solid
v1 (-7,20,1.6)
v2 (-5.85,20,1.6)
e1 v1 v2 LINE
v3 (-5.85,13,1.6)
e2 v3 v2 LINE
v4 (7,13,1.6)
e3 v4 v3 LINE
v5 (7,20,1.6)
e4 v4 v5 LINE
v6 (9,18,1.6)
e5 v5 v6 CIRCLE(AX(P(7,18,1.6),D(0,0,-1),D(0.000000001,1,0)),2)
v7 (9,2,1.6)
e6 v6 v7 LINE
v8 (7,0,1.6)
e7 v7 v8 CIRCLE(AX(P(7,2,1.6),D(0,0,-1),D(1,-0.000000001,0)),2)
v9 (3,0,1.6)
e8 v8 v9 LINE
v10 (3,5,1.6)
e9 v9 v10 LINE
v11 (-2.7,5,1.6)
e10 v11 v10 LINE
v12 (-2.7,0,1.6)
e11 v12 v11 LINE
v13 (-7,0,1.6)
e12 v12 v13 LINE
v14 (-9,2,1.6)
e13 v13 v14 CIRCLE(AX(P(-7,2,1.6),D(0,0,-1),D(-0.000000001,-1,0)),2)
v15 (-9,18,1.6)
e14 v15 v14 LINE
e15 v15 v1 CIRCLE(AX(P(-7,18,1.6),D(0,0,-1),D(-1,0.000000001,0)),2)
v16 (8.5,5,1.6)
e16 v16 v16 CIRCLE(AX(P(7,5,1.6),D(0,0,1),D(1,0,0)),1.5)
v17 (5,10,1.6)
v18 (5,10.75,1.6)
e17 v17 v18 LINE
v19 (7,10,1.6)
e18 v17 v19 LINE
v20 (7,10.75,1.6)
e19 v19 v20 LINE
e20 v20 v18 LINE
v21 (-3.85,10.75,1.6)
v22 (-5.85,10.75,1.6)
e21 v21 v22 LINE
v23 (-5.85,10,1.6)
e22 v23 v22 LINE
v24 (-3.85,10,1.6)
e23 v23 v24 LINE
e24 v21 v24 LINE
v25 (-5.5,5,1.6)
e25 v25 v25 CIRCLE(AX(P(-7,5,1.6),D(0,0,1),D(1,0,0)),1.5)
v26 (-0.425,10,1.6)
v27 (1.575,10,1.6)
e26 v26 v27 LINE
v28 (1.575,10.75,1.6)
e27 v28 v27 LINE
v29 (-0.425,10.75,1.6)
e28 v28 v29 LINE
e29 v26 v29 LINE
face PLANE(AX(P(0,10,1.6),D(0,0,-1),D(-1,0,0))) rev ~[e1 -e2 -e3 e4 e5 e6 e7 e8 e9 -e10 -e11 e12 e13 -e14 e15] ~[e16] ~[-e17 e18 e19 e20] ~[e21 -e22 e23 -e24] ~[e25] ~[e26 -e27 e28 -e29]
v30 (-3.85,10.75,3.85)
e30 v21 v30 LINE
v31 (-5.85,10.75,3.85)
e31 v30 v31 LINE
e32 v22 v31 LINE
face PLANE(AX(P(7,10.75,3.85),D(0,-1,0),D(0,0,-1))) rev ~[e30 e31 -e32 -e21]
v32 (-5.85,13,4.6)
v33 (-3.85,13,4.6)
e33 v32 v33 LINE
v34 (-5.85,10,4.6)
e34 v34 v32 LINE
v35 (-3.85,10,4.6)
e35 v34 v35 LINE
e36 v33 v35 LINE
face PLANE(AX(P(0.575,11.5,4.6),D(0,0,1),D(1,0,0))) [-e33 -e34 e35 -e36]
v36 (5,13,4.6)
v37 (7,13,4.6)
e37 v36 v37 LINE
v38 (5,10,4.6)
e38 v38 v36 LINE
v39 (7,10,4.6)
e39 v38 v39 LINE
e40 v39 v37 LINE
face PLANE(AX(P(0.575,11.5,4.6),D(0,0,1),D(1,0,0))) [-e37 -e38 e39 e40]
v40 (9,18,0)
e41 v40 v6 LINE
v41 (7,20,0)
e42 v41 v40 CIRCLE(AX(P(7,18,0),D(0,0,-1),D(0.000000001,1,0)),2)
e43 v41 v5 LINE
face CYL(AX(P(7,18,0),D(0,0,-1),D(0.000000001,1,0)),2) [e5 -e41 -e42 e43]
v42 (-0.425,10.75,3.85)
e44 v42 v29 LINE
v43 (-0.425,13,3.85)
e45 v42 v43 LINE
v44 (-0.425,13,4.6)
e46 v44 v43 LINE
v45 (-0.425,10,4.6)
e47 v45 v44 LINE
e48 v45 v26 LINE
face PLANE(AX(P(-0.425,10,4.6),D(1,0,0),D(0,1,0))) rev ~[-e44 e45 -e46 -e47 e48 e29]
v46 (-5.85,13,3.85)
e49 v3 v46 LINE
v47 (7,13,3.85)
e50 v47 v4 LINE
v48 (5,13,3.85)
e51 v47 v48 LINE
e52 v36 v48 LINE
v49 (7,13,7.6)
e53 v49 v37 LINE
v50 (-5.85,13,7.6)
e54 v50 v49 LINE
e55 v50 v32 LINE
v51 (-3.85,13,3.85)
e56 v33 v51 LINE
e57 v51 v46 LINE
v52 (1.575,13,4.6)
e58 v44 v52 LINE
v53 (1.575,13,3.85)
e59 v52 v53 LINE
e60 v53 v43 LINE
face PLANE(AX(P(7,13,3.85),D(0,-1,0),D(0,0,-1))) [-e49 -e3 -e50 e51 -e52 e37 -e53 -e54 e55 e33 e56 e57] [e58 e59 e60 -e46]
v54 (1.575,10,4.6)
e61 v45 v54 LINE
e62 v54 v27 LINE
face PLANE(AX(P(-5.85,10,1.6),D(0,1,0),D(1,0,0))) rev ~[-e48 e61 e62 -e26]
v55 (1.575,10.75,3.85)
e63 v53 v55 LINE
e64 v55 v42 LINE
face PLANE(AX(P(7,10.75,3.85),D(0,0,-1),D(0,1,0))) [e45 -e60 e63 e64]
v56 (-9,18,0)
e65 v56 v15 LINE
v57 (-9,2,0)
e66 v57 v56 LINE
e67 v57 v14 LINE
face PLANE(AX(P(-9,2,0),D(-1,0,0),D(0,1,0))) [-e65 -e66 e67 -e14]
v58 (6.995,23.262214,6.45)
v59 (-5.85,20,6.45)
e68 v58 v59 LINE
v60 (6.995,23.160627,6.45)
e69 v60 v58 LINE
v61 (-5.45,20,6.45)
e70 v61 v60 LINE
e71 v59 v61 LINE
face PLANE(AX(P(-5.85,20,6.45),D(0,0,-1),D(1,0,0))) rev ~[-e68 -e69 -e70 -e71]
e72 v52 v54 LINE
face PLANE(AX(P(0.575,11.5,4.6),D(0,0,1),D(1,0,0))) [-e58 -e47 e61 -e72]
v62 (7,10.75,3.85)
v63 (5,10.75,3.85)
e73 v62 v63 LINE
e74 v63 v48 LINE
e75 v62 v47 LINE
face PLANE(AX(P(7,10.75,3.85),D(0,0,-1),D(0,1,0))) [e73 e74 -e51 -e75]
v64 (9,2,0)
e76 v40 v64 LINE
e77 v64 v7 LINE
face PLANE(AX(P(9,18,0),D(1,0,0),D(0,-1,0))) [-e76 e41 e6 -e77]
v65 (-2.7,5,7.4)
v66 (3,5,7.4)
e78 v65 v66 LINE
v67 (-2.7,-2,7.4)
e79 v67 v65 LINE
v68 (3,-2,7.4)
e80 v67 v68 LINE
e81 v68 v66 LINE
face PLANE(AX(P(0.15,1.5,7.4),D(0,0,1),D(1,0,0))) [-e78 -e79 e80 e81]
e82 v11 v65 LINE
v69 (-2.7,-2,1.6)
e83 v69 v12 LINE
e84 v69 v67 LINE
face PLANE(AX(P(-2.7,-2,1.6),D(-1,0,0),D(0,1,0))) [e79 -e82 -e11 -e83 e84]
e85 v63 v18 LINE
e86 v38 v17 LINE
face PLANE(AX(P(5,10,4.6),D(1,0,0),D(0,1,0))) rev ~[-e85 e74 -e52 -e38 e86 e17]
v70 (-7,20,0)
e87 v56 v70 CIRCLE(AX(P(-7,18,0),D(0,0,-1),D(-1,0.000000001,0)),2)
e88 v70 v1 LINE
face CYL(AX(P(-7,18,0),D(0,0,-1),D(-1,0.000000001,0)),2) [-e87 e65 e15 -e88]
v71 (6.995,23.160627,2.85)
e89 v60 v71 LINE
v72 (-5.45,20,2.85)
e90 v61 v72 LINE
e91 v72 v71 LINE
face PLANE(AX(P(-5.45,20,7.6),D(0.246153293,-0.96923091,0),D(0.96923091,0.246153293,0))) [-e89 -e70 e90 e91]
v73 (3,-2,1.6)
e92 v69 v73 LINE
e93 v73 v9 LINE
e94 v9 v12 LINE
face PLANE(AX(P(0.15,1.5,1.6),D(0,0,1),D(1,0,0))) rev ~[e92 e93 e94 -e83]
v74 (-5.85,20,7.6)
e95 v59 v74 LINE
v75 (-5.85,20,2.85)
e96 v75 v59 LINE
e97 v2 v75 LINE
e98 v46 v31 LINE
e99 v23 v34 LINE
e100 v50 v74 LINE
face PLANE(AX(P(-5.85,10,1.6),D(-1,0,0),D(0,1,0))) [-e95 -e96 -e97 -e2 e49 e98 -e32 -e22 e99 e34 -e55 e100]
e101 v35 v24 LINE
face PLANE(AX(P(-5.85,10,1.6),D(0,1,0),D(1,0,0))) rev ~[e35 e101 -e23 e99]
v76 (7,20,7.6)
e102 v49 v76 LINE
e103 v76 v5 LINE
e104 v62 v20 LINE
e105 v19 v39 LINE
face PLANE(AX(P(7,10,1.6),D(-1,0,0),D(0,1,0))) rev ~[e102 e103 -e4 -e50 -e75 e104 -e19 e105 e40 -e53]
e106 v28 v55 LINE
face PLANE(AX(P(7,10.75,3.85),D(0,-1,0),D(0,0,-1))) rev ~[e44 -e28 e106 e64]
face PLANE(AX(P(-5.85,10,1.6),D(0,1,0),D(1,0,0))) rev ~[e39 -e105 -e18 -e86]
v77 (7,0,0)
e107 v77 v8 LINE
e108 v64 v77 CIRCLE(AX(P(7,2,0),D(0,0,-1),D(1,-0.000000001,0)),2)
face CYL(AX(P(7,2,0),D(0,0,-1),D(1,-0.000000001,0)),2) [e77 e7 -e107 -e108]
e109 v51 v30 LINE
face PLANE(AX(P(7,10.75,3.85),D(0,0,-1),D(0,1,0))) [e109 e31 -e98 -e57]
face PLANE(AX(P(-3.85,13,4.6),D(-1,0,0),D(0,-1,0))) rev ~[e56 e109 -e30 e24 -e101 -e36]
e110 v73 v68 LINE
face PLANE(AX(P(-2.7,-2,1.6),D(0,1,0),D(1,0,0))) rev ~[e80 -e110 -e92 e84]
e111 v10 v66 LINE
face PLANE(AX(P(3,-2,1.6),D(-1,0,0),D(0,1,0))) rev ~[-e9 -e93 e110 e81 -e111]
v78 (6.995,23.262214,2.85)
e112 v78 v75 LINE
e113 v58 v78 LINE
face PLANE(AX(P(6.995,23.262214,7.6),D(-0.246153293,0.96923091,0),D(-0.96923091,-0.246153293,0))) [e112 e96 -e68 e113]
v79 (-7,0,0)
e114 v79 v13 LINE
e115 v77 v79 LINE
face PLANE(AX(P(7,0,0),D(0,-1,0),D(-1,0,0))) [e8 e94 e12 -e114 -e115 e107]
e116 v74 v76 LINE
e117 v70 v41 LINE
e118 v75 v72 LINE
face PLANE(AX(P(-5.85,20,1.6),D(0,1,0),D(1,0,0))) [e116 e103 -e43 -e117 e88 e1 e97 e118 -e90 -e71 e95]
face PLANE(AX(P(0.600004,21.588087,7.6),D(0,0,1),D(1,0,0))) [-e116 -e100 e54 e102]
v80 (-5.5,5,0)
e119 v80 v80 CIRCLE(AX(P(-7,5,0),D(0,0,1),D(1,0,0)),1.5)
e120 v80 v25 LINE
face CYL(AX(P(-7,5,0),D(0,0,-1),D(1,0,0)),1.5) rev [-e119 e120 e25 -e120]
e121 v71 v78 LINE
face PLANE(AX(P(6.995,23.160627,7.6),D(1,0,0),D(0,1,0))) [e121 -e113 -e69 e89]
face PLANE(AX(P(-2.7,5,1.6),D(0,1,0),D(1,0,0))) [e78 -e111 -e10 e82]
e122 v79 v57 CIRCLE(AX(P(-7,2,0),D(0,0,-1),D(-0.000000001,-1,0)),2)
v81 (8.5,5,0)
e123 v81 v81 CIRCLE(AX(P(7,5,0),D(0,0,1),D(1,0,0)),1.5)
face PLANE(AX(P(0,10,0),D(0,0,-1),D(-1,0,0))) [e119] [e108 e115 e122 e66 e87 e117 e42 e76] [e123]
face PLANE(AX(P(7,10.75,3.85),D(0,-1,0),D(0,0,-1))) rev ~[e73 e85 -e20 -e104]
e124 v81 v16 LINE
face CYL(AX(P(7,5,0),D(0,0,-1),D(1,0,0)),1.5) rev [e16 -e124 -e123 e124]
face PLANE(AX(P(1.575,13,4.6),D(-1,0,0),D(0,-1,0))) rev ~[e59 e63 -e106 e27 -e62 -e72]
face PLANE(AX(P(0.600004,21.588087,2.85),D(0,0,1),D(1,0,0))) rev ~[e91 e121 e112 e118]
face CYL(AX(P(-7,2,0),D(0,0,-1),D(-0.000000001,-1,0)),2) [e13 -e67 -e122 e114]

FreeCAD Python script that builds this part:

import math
import FreeCAD as App
import Part
import Sketcher

V = App.Vector
Q = App.Units.Quantity


def add_polygon(sketch, points):
    """Adds a closed chain of lines whose ends are joined by coincident constraints."""
    first, n = sketch.GeometryCount, len(points)
    for a, b in zip(points, points[1:] + points[:1]):
        sketch.addGeometry(Part.LineSegment(App.Vector(*a, 0), App.Vector(*b, 0)), False)
    for i in range(n):
        sketch.addConstraint(Sketcher.Constraint("Coincident", first + i, 2, first + (i + 1) % n, 1))

doc = App.newDocument("Part")
body = doc.addObject("PartDesign::Body", "Body")

# Sketch on XY plane
sketch1 = body.newObject("Sketcher::SketchObject", "Sketch")
sketch1.AttachmentSupport = (doc.getObject("XY_Plane"), [""])
sketch1.MapMode = "FlatFace"
sketch1.addGeometry([
    Part.LineSegment(V(7, 20, 0), V(-7, 20, 0)),  # 0
    Part.ArcOfCircle(Part.Circle(V(-7, 18, 0), V(0, 0, 1), 2), math.radians(90), math.radians(180)),  # 1
    Part.LineSegment(V(-9, 18, 0), V(-9, 2, 0)),  # 2
    Part.ArcOfCircle(Part.Circle(V(-7, 2, 0), V(0, 0, 1), 2), math.radians(-180), math.radians(-90)),  # 3
    Part.LineSegment(V(-7, 0, 0), V(7, 0, 0)),  # 4
    Part.ArcOfCircle(Part.Circle(V(7, 2, 0), V(0, 0, 1), 2), math.radians(-90), math.radians(0)),  # 5
    Part.LineSegment(V(9, 2, 0), V(9, 18, 0)),  # 6
    Part.ArcOfCircle(Part.Circle(V(7, 18, 0), V(0, 0, 1), 2), math.radians(0), math.radians(90)),  # 7
    Part.Circle(V(7, 5, 0), V(0, 0, 1), 1.5),  # 8
    Part.Circle(V(-7, 5, 0), V(0, 0, 1), 1.5),  # 9
], False)
sketch1.addConstraint([
    Sketcher.Constraint("Tangent", 0, 2, 1, 1),
    Sketcher.Constraint("Tangent", 1, 2, 2, 1),
    Sketcher.Constraint("Tangent", 2, 2, 3, 1),
    Sketcher.Constraint("Tangent", 3, 2, 4, 1),
    Sketcher.Constraint("Tangent", 4, 2, 5, 1),
    Sketcher.Constraint("Tangent", 5, 2, 6, 1),
    Sketcher.Constraint("Tangent", 6, 2, 7, 1),
    Sketcher.Constraint("Tangent", 7, 2, 0, 1),
    Sketcher.Constraint("Horizontal", 0),
    Sketcher.Constraint("Vertical", 2),
    Sketcher.Constraint("Horizontal", 4),
    Sketcher.Constraint("Vertical", 6),
    Sketcher.Constraint("Equal", 1, 3),
    Sketcher.Constraint("Equal", 3, 5),
    Sketcher.Constraint("Equal", 5, 7),
    Sketcher.Constraint("Equal", 8, 9),
    Sketcher.Constraint("Symmetric", 3, 2, 4, 2, -1, 1),
    Sketcher.Constraint("Symmetric", 8, 3, 9, 3, -2),
    Sketcher.Constraint("Vertical", 7, 3, 8, 3),
    Sketcher.Constraint("Diameter", 8, Q("3 mm")),
    Sketcher.Constraint("Radius", 1, Q("2 mm")),
    Sketcher.Constraint("DistanceX", 0, 2, 0, 1, Q("14 mm")),
    Sketcher.Constraint("DistanceY", 2, 2, 2, 1, Q("16 mm")),
    Sketcher.Constraint("DistanceY", -1, 1, 8, 3, Q("5 mm")),
])
pad1 = body.newObject("PartDesign::Pad", "Pad")
pad1.Profile = sketch1
pad1.Length = 1.6

# Sketch on XY plane
sketch2 = body.newObject("Sketcher::SketchObject", "Sketch001")
sketch2.AttachmentSupport = (doc.getObject("XY_Plane"), [""])
sketch2.MapMode = "FlatFace"
sketch2.AttachmentOffset = App.Placement(V(0, 0, 1.6), App.Rotation())
add_polygon(sketch2, [(-6, 20), (-6, 10), (7, 10), (7, 20)])  # lines 0-3
sketch2.addConstraint([
    Sketcher.Constraint("Vertical", 0),
    Sketcher.Constraint("Horizontal", 1),
    Sketcher.Constraint("Vertical", 2),
    Sketcher.Constraint("Horizontal", 3),
    Sketcher.Constraint("DistanceY", 0, 2, 0, 1, Q("10 mm")),
    Sketcher.Constraint("DistanceY", -1, 1, 0, 2, Q("10 mm")),
    Sketcher.Constraint("DistanceX", -1, 1, 1, 2, Q("7 mm")),
    Sketcher.Constraint("DistanceX", 1, 1, 1, 2, Q("12.85 mm")),
])
pad2 = body.newObject("PartDesign::Pad", "Pad001")
pad2.Profile = sketch2
pad2.Length = 6

# Sketch on XY plane
sketch3 = body.newObject("Sketcher::SketchObject", "Sketch002")
sketch3.AttachmentSupport = (doc.getObject("XY_Plane"), [""])
sketch3.MapMode = "FlatFace"
sketch3.AttachmentOffset = App.Placement(V(0, 0, 7.6), App.Rotation())
add_polygon(sketch3, [(-5.8, 13), (-5.8, 10), (7, 10), (7, 13)])  # lines 0-3
sketch3.addConstraint([
    Sketcher.Constraint("Vertical", 0),
    Sketcher.Constraint("Horizontal", 1),
    Sketcher.Constraint("Vertical", 2),
    Sketcher.Constraint("Horizontal", 3),
    Sketcher.Constraint("DistanceY", 0, 2, 0, 1, Q("3 mm")),
    Sketcher.Constraint("DistanceY", -1, 1, 0, 2, Q("10 mm")),
    Sketcher.Constraint("DistanceX", -1, 1, 1, 2, Q("7 mm")),
    Sketcher.Constraint("DistanceX", 1, 1, 1, 2, Q("12.85 mm")),
])
pocket1 = body.newObject("PartDesign::Pocket", "Pocket")
pocket1.Profile = sketch3
pocket1.Length = 3

# Sketch on XY plane
sketch4 = body.newObject("Sketcher::SketchObject", "Sketch003")
sketch4.AttachmentSupport = (doc.getObject("XY_Plane"), [""])
sketch4.MapMode = "FlatFace"
sketch4.AttachmentOffset = App.Placement(V(0, 0, 4.6), App.Rotation())
add_polygon(sketch4, [(5, 13), (1.6, 13), (1.6, 10), (5, 10)])  # lines 0-3
add_polygon(sketch4, [(-0.4, 13), (-3.9, 13), (-3.9, 10), (-0.4, 10)])  # lines 4-7
sketch4.addConstraint([
    Sketcher.Constraint("Horizontal", 0),
    Sketcher.Constraint("Vertical", 1),
    Sketcher.Constraint("Horizontal", 2),
    Sketcher.Constraint("Vertical", 3),
    Sketcher.Constraint("Horizontal", 4),
    Sketcher.Constraint("Vertical", 5),
    Sketcher.Constraint("Horizontal", 6),
    Sketcher.Constraint("Vertical", 7),
    Sketcher.Constraint("Horizontal", 3, 2, 4, 2),
    Sketcher.Constraint("Horizontal", 2, 2, 5, 2),
    Sketcher.Constraint("Equal", 2, 4),
    Sketcher.Constraint("DistanceY", 1, 2, 1, 1, Q("3 mm")),
    Sketcher.Constraint("DistanceY", -1, 1, 0, 2, Q("13 mm")),
    Sketcher.Constraint("DistanceX", -1, 1, 2, 2, Q("5 mm")),
    Sketcher.Constraint("DistanceX", 6, 2, 1, 2, Q("2 mm")),
    Sketcher.Constraint("DistanceX", 0, 2, 0, 1, Q("3.425 mm")),
])
pocket2 = body.newObject("PartDesign::Pocket", "Pocket001")
pocket2.Profile = sketch4
pocket2.Length = 3

# Sketch on YZ plane
sketch5 = body.newObject("Sketcher::SketchObject", "Sketch004")
sketch5.AttachmentSupport = (doc.getObject("YZ_Plane"), [""])
sketch5.MapMode = "FlatFace"
sketch5.AttachmentOffset = App.Placement(V(0, 0, 7), App.Rotation())
add_polygon(sketch5, [(13, 3.9), (10.8, 3.9), (10.8, 1.6), (13, 1.6)])  # lines 0-3
sketch5.addConstraint([
    Sketcher.Constraint("Horizontal", 0),
    Sketcher.Constraint("Vertical", 1),
    Sketcher.Constraint("Horizontal", 2),
    Sketcher.Constraint("Vertical", 3),
    Sketcher.Constraint("Equal", 2, 1),
    Sketcher.Constraint("DistanceX", -1, 1, 2, 2, Q("13 mm")),
    Sketcher.Constraint("DistanceX", 0, 2, 0, 1, Q("2.25 mm")),
    Sketcher.Constraint("DistanceY", -1, 1, 1, 2, Q("1.6 mm")),
])
pocket3 = body.newObject("PartDesign::Pocket", "Pocket002")
pocket3.Profile = sketch5
pocket3.Type = "ThroughAll"

# Sketch on XY plane
sketch6 = body.newObject("Sketcher::SketchObject", "Sketch005")
sketch6.AttachmentSupport = (doc.getObject("XY_Plane"), [""])
sketch6.MapMode = "FlatFace"
sketch6.AttachmentOffset = App.Placement(V(0, 0, 7.6), App.Rotation())
add_polygon(sketch6, [(7, 23.26), (-5.85, 20), (-5.45, 20), (7, 23.16)])  # lines 0-3
sketch6.addConstraint([
    Sketcher.Constraint("Horizontal", 1),
    Sketcher.Constraint("Vertical", 3),
    Sketcher.Constraint("Parallel", 0, 2),
    Sketcher.Constraint("DistanceX", 1, 1, 1, 2, Q("0.4 mm")),
    Sketcher.Constraint("DistanceY", -1, 1, 0, 2, Q("20 mm")),
    Sketcher.Constraint("Angle", 0, Q("-165.75 deg")),
    Sketcher.Constraint("DistanceX", 0, 2, -1, 1, Q("5.85 mm")),
    Sketcher.Constraint("DistanceX", -1, 1, 2, 2, Q("6.995 mm")),
])
pad3 = body.newObject("PartDesign::Pad", "Pad002")
pad3.Profile = sketch6
pad3.Length = 4.75
pad3.Reversed = True

# Sketch on XZ plane
sketch7 = body.newObject("Sketcher::SketchObject", "Sketch006")
sketch7.AttachmentSupport = (doc.getObject("XZ_Plane"), [""])
sketch7.MapMode = "FlatFace"
sketch7.AttachmentOffset = App.Placement(V(0, 0, -20), App.Rotation())
add_polygon(sketch7, [(-5.8, 6.5), (-5.8, 7.6), (7, 7.6), (7, 6.5)])  # lines 0-3
sketch7.addConstraint([
    Sketcher.Constraint("Vertical", 0),
    Sketcher.Constraint("Horizontal", 1),
    Sketcher.Constraint("Vertical", 2),
    Sketcher.Constraint("Horizontal", 3),
    Sketcher.Constraint("DistanceX", -1, 1, 1, 2, Q("7 mm")),
    Sketcher.Constraint("DistanceX", 1, 1, 1, 2, Q("12.85 mm")),
    Sketcher.Constraint("DistanceY", 0, 1, 0, 2, Q("1.15 mm")),
    Sketcher.Constraint("DistanceY", -1, 1, 0, 2, Q("7.6 mm")),
])
pocket4 = body.newObject("PartDesign::Pocket", "Pocket003")
pocket4.Profile = sketch7
pocket4.Length = 4.75

# Sketch on XY plane
sketch8 = body.newObject("Sketcher::SketchObject", "Sketch007")
sketch8.AttachmentSupport = (doc.getObject("XY_Plane"), [""])
sketch8.MapMode = "FlatFace"
sketch8.AttachmentOffset = App.Placement(V(0, 0, 1.6), App.Rotation())
add_polygon(sketch8, [(-3, 5), (-3, -2), (3, -2), (3, 5)])  # lines 0-3
sketch8.addConstraint([
    Sketcher.Constraint("Vertical", 0),
    Sketcher.Constraint("Horizontal", 1),
    Sketcher.Constraint("Vertical", 2),
    Sketcher.Constraint("Horizontal", 3),
    Sketcher.Constraint("DistanceY", 0, 2, 0, 1, Q("7 mm")),
    Sketcher.Constraint("DistanceX", 1, 1, 1, 2, Q("5.7 mm")),
    Sketcher.Constraint("DistanceY", 0, 2, -1, 1, Q("2 mm")),
    Sketcher.Constraint("DistanceX", -1, 1, 1, 2, Q("3 mm")),
])
pad4 = body.newObject("PartDesign::Pad", "Pad003")
pad4.Profile = sketch8
pad4.Length = 5.8

doc.recompute()
